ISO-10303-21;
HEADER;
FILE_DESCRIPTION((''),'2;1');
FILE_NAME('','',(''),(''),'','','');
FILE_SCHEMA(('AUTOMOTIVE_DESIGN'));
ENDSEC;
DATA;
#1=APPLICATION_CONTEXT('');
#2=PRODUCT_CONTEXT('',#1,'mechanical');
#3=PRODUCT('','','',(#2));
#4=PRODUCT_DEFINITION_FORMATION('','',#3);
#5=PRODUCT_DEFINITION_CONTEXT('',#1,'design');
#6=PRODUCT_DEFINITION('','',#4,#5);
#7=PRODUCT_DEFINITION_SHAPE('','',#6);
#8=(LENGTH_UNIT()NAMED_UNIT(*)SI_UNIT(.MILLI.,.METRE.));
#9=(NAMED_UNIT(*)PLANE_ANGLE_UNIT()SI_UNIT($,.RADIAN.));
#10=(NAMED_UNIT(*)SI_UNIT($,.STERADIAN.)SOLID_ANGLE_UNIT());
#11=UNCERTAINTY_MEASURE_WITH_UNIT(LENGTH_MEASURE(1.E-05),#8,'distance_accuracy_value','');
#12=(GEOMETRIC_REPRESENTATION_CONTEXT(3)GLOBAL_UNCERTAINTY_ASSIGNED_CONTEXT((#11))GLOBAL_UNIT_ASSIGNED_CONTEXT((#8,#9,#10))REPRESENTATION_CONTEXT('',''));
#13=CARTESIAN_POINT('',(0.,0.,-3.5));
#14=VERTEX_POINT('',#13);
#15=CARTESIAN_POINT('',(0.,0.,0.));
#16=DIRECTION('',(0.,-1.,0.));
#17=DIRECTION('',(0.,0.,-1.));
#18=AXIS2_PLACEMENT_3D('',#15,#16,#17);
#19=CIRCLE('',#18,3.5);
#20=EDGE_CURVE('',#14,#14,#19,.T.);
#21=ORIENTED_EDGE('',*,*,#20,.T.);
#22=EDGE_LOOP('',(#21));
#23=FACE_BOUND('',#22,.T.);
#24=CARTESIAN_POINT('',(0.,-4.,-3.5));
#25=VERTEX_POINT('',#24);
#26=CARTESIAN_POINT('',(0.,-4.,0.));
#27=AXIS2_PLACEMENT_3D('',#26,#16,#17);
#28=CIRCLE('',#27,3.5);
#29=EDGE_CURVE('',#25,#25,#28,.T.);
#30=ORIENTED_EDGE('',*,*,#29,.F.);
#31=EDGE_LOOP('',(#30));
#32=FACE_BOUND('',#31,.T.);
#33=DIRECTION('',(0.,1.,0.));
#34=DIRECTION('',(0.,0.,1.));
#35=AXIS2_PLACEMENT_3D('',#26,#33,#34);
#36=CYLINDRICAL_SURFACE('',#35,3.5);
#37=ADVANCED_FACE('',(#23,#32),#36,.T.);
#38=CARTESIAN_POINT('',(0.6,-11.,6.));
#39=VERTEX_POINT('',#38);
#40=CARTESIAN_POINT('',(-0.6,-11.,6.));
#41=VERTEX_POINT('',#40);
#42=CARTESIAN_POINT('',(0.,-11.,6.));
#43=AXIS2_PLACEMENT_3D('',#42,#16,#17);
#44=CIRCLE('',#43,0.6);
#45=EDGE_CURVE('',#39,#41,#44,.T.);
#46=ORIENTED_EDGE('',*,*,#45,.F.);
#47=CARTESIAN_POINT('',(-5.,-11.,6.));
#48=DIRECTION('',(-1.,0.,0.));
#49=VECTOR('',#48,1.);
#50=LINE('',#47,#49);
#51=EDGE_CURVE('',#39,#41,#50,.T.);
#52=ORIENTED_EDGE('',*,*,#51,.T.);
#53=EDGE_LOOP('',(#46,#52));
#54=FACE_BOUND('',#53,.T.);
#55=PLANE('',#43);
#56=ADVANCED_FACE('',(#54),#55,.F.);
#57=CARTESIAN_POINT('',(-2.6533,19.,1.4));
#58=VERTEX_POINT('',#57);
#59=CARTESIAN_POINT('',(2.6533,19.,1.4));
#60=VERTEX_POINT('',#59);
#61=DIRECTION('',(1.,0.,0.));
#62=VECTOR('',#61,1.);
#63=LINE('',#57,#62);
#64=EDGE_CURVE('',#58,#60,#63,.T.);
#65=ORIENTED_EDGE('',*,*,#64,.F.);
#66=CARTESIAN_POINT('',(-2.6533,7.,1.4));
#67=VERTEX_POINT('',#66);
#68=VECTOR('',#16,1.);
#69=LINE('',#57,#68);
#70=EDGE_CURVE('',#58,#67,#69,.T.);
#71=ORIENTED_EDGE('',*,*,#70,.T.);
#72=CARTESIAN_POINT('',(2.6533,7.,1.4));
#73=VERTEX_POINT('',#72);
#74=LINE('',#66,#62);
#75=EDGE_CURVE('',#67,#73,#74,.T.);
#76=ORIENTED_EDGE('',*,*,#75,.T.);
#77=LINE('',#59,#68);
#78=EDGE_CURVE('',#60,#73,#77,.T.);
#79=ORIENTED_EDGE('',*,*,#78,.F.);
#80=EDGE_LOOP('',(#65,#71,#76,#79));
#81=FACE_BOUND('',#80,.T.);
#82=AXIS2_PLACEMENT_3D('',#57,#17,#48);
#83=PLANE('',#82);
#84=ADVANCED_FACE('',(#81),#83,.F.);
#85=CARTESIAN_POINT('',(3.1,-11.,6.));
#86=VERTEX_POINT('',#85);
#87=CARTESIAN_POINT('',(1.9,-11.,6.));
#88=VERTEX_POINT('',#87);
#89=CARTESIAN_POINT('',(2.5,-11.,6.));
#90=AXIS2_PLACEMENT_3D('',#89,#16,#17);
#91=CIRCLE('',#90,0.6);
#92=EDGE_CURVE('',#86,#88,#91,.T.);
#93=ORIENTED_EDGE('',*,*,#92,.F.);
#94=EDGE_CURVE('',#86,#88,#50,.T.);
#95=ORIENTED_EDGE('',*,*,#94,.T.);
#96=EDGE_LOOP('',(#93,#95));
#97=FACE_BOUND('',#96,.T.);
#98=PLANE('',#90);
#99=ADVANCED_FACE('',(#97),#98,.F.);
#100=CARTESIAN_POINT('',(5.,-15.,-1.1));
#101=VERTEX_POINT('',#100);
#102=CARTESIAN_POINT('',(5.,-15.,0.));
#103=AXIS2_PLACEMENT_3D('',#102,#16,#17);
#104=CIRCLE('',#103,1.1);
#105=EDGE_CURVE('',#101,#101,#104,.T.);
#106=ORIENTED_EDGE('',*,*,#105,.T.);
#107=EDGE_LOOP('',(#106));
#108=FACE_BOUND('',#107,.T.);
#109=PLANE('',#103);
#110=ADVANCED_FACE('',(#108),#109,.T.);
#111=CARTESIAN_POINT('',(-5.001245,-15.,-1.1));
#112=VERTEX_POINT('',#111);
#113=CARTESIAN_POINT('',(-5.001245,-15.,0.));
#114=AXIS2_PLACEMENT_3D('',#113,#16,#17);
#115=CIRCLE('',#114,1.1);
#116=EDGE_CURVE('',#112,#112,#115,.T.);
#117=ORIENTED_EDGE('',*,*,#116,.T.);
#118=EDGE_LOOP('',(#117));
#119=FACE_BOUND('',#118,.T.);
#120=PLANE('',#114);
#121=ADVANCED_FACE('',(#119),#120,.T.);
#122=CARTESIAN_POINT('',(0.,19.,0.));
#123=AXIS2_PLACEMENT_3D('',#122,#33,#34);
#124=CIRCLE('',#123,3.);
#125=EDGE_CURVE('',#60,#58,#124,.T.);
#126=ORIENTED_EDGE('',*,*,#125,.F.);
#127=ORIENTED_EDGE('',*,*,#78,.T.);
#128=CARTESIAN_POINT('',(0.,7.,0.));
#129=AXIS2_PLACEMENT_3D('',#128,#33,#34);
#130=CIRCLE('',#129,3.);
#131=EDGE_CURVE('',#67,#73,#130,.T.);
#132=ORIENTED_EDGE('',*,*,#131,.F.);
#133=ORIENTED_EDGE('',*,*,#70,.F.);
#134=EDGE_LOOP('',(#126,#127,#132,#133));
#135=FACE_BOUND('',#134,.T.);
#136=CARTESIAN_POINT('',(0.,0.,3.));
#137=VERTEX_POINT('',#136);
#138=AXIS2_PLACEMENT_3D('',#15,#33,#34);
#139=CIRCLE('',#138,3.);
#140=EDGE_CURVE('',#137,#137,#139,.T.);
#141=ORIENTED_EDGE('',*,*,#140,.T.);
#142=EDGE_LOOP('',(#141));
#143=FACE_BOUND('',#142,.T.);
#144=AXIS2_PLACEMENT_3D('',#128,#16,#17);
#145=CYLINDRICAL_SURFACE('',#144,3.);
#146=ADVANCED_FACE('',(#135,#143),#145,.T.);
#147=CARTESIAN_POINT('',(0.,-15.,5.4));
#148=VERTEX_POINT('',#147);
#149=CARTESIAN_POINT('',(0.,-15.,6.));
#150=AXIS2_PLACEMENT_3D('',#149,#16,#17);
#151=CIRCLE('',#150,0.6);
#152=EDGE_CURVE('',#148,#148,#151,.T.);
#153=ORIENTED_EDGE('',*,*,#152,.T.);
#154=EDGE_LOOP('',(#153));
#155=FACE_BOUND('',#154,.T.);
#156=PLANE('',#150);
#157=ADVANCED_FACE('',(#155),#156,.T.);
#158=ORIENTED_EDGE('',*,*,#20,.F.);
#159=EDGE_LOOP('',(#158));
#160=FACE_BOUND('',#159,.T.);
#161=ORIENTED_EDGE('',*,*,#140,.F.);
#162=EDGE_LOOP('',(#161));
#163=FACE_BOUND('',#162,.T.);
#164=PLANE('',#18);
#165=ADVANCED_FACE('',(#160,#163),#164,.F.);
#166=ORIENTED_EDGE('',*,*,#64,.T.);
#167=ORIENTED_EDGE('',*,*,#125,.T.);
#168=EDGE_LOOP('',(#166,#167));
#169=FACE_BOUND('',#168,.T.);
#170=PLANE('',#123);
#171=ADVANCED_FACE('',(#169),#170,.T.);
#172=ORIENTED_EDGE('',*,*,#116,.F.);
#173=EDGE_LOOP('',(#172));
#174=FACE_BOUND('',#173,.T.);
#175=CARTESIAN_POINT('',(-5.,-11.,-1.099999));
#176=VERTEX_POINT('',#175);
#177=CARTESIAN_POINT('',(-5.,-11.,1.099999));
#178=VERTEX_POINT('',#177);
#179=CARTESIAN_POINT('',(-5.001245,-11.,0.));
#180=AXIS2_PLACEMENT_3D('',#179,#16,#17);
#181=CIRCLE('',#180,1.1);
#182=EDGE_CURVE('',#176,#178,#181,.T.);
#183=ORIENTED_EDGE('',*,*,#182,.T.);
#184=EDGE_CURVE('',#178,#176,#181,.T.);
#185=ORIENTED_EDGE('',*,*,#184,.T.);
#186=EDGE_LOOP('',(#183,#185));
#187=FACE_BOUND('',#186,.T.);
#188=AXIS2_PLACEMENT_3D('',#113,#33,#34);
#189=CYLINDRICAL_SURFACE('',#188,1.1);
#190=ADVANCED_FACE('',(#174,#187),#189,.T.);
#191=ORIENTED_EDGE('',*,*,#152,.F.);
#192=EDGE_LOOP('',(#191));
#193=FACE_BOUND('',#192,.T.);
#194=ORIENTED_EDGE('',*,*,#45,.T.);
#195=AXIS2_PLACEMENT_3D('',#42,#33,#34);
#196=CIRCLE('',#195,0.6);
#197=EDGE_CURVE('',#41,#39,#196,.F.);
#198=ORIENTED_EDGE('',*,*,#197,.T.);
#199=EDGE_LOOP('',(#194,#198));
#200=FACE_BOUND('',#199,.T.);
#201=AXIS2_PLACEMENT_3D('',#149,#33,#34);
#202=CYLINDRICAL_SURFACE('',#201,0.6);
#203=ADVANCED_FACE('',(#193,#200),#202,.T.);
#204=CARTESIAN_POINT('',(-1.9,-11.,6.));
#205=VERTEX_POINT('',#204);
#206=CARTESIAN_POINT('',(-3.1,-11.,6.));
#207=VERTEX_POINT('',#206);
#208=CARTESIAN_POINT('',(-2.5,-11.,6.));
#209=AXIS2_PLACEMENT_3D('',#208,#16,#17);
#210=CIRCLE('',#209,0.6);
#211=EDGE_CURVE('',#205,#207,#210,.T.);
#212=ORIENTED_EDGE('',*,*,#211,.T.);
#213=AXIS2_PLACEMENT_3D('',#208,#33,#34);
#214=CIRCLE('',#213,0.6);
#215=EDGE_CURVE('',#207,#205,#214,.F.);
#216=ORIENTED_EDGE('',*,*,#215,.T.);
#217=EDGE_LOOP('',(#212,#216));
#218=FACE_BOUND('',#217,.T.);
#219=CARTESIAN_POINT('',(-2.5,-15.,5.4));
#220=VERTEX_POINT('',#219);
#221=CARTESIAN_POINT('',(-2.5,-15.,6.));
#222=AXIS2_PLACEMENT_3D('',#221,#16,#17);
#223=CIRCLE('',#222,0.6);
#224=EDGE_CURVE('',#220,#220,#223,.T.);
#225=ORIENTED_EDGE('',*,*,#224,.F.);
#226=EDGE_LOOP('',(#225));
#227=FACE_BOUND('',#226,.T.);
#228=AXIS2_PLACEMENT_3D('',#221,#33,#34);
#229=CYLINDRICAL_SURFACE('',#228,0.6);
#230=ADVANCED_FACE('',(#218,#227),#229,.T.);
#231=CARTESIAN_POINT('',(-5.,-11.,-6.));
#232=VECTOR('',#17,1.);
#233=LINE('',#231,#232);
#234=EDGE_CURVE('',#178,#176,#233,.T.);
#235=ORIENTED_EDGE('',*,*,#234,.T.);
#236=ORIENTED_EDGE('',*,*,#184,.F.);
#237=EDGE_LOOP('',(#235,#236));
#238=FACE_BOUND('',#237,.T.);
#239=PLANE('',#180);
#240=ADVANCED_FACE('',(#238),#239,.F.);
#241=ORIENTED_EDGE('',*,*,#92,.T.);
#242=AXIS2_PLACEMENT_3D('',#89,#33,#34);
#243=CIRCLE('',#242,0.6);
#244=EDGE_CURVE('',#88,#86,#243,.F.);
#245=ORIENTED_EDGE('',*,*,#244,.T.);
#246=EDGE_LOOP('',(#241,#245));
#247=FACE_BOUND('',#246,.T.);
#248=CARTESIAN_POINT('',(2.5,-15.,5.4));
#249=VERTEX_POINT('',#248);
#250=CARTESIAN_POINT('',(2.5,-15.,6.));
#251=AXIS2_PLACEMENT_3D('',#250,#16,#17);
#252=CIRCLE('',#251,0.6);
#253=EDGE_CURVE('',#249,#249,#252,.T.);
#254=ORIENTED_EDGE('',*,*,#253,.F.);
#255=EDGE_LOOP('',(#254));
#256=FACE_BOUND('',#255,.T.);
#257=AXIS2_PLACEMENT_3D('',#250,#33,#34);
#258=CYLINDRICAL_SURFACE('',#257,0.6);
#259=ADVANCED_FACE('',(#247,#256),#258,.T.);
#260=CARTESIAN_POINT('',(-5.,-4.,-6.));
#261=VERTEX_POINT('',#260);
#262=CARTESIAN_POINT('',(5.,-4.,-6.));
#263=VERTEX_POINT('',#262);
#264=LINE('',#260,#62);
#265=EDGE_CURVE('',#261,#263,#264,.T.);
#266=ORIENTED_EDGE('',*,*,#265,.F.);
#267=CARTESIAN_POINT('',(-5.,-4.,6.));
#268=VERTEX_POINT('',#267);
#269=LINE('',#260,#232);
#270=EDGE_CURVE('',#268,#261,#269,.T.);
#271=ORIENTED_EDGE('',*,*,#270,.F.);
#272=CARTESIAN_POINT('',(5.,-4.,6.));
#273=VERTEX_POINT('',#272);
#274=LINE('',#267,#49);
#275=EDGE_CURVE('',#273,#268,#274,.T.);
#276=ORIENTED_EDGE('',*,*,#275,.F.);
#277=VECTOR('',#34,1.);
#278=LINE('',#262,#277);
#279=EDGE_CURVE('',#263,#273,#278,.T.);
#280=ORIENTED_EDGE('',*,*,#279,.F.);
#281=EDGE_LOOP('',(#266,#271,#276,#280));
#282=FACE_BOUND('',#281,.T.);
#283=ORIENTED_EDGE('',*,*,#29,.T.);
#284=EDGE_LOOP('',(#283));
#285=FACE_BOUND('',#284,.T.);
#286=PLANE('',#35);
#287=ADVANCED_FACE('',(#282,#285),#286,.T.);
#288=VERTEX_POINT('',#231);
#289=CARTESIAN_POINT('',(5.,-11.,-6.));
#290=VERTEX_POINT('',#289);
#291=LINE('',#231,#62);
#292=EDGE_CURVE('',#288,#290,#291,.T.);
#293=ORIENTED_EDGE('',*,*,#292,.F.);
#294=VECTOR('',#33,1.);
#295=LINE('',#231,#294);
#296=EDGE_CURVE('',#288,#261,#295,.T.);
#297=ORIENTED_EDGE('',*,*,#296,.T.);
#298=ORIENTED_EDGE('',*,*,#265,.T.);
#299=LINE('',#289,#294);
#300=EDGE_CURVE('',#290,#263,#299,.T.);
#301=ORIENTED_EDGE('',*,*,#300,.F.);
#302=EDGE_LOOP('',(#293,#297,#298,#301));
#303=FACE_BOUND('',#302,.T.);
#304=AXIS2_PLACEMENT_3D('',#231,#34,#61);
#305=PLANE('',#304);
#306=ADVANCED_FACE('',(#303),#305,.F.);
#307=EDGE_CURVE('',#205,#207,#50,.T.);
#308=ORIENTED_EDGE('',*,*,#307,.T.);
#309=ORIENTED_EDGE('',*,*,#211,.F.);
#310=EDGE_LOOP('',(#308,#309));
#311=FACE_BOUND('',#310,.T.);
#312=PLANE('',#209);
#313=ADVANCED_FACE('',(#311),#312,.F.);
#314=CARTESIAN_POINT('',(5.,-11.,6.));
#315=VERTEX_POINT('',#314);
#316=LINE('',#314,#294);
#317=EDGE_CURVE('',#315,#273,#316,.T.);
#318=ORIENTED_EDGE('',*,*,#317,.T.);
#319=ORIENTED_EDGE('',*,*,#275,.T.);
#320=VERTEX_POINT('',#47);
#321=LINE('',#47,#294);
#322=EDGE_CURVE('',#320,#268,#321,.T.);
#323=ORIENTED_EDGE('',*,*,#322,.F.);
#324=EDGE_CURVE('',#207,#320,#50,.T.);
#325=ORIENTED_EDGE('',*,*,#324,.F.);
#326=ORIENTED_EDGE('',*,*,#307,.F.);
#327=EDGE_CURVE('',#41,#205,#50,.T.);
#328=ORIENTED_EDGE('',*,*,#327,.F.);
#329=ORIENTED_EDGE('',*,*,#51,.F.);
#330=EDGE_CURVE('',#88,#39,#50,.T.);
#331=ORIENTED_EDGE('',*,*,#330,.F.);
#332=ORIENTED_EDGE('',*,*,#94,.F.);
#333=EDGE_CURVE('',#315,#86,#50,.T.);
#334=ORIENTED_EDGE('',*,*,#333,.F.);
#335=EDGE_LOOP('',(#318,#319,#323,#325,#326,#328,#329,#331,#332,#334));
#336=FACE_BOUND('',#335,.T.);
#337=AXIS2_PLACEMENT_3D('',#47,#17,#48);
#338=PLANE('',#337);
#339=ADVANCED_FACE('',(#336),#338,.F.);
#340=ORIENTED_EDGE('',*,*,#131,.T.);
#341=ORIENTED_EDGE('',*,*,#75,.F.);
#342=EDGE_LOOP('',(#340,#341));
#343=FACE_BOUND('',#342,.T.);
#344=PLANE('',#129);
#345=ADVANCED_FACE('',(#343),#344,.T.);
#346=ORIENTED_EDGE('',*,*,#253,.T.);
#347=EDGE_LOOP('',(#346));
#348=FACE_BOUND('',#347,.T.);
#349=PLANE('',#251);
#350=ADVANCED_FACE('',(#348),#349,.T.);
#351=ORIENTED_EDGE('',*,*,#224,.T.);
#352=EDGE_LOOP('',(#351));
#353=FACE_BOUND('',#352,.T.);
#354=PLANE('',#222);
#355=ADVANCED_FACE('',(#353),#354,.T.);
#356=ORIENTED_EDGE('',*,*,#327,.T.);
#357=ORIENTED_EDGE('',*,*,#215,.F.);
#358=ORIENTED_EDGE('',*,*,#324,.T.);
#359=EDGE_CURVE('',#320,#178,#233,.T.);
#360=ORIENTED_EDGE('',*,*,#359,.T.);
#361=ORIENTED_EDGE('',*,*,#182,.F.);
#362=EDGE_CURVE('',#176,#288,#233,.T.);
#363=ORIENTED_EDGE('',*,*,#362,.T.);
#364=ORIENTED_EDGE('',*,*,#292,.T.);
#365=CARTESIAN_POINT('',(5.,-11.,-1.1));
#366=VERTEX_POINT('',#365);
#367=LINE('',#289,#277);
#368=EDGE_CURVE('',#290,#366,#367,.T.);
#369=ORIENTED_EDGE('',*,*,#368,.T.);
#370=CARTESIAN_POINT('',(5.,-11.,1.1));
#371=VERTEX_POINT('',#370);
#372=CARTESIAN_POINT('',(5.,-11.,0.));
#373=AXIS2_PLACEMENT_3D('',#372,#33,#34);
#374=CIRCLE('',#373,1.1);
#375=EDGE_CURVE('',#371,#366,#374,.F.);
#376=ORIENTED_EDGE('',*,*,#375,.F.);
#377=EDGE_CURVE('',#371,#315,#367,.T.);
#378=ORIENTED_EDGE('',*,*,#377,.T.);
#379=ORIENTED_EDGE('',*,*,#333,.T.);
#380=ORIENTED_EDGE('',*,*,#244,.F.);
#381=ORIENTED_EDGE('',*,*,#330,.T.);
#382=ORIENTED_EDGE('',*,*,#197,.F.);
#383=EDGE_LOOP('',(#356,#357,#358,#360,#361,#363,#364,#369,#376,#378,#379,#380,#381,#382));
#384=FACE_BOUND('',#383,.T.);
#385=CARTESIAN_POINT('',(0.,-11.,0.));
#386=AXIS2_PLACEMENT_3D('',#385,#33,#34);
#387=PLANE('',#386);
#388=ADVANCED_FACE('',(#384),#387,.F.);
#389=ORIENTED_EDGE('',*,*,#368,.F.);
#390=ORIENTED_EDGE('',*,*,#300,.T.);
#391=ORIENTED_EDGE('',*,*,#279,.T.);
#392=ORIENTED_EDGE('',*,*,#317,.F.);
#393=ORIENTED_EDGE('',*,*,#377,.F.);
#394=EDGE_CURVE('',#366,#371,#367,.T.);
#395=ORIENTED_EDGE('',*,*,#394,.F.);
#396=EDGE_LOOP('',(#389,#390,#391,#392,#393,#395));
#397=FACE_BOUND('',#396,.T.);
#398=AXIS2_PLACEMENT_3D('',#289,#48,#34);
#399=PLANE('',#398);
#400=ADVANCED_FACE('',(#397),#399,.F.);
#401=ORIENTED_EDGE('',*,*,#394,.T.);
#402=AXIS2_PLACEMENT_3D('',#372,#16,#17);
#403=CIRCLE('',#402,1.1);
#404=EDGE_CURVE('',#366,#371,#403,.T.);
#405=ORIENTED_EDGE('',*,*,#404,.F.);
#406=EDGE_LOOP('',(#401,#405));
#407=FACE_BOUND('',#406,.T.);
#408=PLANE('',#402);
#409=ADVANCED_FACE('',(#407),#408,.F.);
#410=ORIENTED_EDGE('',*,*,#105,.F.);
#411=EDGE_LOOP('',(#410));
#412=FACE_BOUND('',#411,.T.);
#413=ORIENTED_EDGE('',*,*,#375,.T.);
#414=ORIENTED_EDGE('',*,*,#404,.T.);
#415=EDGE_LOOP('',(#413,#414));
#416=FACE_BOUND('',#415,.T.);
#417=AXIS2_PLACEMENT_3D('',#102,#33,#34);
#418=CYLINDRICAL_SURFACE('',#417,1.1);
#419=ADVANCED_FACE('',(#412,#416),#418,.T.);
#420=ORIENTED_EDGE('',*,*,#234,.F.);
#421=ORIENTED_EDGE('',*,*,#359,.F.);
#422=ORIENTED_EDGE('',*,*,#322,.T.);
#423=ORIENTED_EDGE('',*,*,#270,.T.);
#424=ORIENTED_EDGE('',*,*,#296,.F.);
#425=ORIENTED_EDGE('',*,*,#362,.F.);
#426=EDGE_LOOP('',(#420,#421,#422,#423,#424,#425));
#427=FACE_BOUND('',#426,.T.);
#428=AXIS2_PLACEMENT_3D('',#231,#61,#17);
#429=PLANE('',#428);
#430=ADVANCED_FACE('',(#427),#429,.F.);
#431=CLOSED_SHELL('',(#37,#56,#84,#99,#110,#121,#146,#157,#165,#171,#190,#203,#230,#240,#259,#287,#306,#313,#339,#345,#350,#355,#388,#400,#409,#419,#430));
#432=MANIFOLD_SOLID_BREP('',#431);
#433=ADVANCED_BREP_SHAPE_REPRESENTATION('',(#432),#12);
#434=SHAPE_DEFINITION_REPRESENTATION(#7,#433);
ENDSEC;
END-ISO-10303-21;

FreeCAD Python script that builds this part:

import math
import FreeCAD as App
import Part
import Sketcher
from FreeCAD import Vector

doc = App.newDocument("Part")
body = doc.addObject("PartDesign::Body", "Body")

# Sketch on XZ plane
sketch1 = body.newObject("Sketcher::SketchObject", "Sketch")
sketch1.AttachmentSupport = (doc.getObject("XZ_Plane"), [""])
sketch1.MapMode = "FlatFace"
sketch1.addGeometry(Part.Circle(Vector(0, 0, 0), Vector(0, 0, 1), 3), False)
sketch1.addConstraint(Sketcher.Constraint("Coincident", 0, 3, -1, 1))
sketch1.addConstraint(Sketcher.Constraint("Diameter", 0, 6.0))
pad1 = body.newObject("PartDesign::Pad", "Pad")
pad1.Profile = sketch1
pad1.Length = 7
pad1.Reversed = True

# Sketch on XZ plane
sketch2 = body.newObject("Sketcher::SketchObject", "Sketch001")
sketch2.AttachmentSupport = (doc.getObject("XZ_Plane"), [""])
sketch2.MapMode = "FlatFace"
sketch2.AttachmentOffset = App.Placement(Vector(0, 0, -7), App.Rotation())
sketch2.addGeometry(Part.LineSegment(Vector(-2.7, 1.4, 0), Vector(2.7, 1.4, 0)), False)
sketch2.addGeometry(Part.ArcOfCircle(Part.Circle(Vector(0, 0, 0), Vector(0, 0, 1), 3), math.radians(152), math.radians(388)), False)
sketch2.addConstraint(Sketcher.Constraint("Coincident", 0, 1, 1, 1))
sketch2.addConstraint(Sketcher.Constraint("Coincident", 1, 2, 0, 2))
sketch2.addConstraint(Sketcher.Constraint("Horizontal", 0))
sketch2.addConstraint(Sketcher.Constraint("Coincident", 1, 3, -1, 1))
sketch2.addConstraint(Sketcher.Constraint("Radius", 1, 3.0))
sketch2.addConstraint(Sketcher.Constraint("DistanceY", -1, 1, 0, 1, 1.4))
pad2 = body.newObject("PartDesign::Pad", "Pad001")
pad2.Profile = sketch2
pad2.Length = 12
pad2.Reversed = True

# Sketch on XZ plane
sketch3 = body.newObject("Sketcher::SketchObject", "Sketch002")
sketch3.AttachmentSupport = (doc.getObject("XZ_Plane"), [""])
sketch3.MapMode = "FlatFace"
sketch3.addGeometry(Part.Circle(Vector(0, 0, 0), Vector(0, 0, 1), 3.5), False)
sketch3.addConstraint(Sketcher.Constraint("Coincident", 0, 3, -1, 1))
sketch3.addConstraint(Sketcher.Constraint("Diameter", 0, 7.0))
pad3 = body.newObject("PartDesign::Pad", "Pad002")
pad3.Profile = sketch3
pad3.Length = 4

# Sketch on XZ plane
sketch4 = body.newObject("Sketcher::SketchObject", "Sketch003")
sketch4.AttachmentSupport = (doc.getObject("XZ_Plane"), [""])
sketch4.MapMode = "FlatFace"
sketch4.AttachmentOffset = App.Placement(Vector(0, 0, 4), App.Rotation())
sketch4.addGeometry(Part.LineSegment(Vector(-5, 6, 0), Vector(-5, -6, 0)), False)
sketch4.addGeometry(Part.LineSegment(Vector(-5, -6, 0), Vector(5, -6, 0)), False)
sketch4.addGeometry(Part.LineSegment(Vector(5, -6, 0), Vector(5, 6, 0)), False)
sketch4.addGeometry(Part.LineSegment(Vector(5, 6, 0), Vector(-5, 6, 0)), False)
sketch4.addConstraint(Sketcher.Constraint("Coincident", 0, 2, 1, 1))
sketch4.addConstraint(Sketcher.Constraint("Coincident", 1, 2, 2, 1))
sketch4.addConstraint(Sketcher.Constraint("Coincident", 2, 2, 3, 1))
sketch4.addConstraint(Sketcher.Constraint("Coincident", 3, 2, 0, 1))
sketch4.addConstraint(Sketcher.Constraint("Vertical", 0))
sketch4.addConstraint(Sketcher.Constraint("Horizontal", 1))
sketch4.addConstraint(Sketcher.Constraint("Vertical", 2))
sketch4.addConstraint(Sketcher.Constraint("Horizontal", 3))
sketch4.addConstraint(Sketcher.Constraint("Symmetric", 0, 2, 2, 2, -1, 1))
sketch4.addConstraint(Sketcher.Constraint("DistanceX", 1, 1, 1, 2, 10.0))
sketch4.addConstraint(Sketcher.Constraint("DistanceY", 0, 2, 0, 1, 12.0))
pad4 = body.newObject("PartDesign::Pad", "Pad003")
pad4.Profile = sketch4
pad4.Length = 7

# Sketch on XZ plane
sketch5 = body.newObject("Sketcher::SketchObject", "Sketch004")
sketch5.AttachmentSupport = (doc.getObject("XZ_Plane"), [""])
sketch5.MapMode = "FlatFace"
sketch5.AttachmentOffset = App.Placement(Vector(0, 0, 11), App.Rotation())
sketch5.addGeometry(Part.Circle(Vector(-5, 0, 0), Vector(0, 0, 1), 1.1), False)
sketch5.addGeometry(Part.Circle(Vector(5, 0, 0), Vector(0, 0, 1), 1.1), False)
sketch5.addConstraint(Sketcher.Constraint("Equal", 0, 1))
sketch5.addConstraint(Sketcher.Constraint("PointOnObject", 0, 3, -1))
sketch5.addConstraint(Sketcher.Constraint("PointOnObject", 1, 3, -1))
sketch5.addConstraint(Sketcher.Constraint("Diameter", 0, 2.2))
sketch5.addConstraint(Sketcher.Constraint("DistanceX", -1, 1, 1, 3, 5.0))
sketch5.addConstraint(Sketcher.Constraint("DistanceX", 0, 3, -1, 1, 5.001245))
pad5 = body.newObject("PartDesign::Pad", "Pad004")
pad5.Profile = sketch5
pad5.Length = 4

# Sketch on XZ plane
sketch6 = body.newObject("Sketcher::SketchObject", "Sketch005")
sketch6.AttachmentSupport = (doc.getObject("XZ_Plane"), [""])
sketch6.MapMode = "FlatFace"
sketch6.AttachmentOffset = App.Placement(Vector(0, 0, 11), App.Rotation())
sketch6.addGeometry(Part.Circle(Vector(0, 6, 0), Vector(0, 0, 1), 0.6), False)
sketch6.addGeometry(Part.Circle(Vector(2.5, 6, 0), Vector(0, 0, 1), 0.6), False)
sketch6.addGeometry(Part.Circle(Vector(-2.5, 6, 0), Vector(0, 0, 1), 0.6), False)
sketch6.addConstraint(Sketcher.Constraint("Equal", 0, 1))
sketch6.addConstraint(Sketcher.Constraint("Equal", 1, 2))
sketch6.addConstraint(Sketcher.Constraint("Symmetric", 1, 3, 2, 3, -2))
sketch6.addConstraint(Sketcher.Constraint("PointOnObject", 0, 3, -2))
sketch6.addConstraint(Sketcher.Constraint("Horizontal", 0, 3, 1, 3))
sketch6.addConstraint(Sketcher.Constraint("Diameter", 0, 1.2))
sketch6.addConstraint(Sketcher.Constraint("DistanceY", -1, 1, 0, 3, 6.0))
sketch6.addConstraint(Sketcher.Constraint("DistanceX", 2, 3, 1, 3, 5.0))
pad6 = body.newObject("PartDesign::Pad", "Pad005")
pad6.Profile = sketch6
pad6.Length = 4

doc.recompute()
